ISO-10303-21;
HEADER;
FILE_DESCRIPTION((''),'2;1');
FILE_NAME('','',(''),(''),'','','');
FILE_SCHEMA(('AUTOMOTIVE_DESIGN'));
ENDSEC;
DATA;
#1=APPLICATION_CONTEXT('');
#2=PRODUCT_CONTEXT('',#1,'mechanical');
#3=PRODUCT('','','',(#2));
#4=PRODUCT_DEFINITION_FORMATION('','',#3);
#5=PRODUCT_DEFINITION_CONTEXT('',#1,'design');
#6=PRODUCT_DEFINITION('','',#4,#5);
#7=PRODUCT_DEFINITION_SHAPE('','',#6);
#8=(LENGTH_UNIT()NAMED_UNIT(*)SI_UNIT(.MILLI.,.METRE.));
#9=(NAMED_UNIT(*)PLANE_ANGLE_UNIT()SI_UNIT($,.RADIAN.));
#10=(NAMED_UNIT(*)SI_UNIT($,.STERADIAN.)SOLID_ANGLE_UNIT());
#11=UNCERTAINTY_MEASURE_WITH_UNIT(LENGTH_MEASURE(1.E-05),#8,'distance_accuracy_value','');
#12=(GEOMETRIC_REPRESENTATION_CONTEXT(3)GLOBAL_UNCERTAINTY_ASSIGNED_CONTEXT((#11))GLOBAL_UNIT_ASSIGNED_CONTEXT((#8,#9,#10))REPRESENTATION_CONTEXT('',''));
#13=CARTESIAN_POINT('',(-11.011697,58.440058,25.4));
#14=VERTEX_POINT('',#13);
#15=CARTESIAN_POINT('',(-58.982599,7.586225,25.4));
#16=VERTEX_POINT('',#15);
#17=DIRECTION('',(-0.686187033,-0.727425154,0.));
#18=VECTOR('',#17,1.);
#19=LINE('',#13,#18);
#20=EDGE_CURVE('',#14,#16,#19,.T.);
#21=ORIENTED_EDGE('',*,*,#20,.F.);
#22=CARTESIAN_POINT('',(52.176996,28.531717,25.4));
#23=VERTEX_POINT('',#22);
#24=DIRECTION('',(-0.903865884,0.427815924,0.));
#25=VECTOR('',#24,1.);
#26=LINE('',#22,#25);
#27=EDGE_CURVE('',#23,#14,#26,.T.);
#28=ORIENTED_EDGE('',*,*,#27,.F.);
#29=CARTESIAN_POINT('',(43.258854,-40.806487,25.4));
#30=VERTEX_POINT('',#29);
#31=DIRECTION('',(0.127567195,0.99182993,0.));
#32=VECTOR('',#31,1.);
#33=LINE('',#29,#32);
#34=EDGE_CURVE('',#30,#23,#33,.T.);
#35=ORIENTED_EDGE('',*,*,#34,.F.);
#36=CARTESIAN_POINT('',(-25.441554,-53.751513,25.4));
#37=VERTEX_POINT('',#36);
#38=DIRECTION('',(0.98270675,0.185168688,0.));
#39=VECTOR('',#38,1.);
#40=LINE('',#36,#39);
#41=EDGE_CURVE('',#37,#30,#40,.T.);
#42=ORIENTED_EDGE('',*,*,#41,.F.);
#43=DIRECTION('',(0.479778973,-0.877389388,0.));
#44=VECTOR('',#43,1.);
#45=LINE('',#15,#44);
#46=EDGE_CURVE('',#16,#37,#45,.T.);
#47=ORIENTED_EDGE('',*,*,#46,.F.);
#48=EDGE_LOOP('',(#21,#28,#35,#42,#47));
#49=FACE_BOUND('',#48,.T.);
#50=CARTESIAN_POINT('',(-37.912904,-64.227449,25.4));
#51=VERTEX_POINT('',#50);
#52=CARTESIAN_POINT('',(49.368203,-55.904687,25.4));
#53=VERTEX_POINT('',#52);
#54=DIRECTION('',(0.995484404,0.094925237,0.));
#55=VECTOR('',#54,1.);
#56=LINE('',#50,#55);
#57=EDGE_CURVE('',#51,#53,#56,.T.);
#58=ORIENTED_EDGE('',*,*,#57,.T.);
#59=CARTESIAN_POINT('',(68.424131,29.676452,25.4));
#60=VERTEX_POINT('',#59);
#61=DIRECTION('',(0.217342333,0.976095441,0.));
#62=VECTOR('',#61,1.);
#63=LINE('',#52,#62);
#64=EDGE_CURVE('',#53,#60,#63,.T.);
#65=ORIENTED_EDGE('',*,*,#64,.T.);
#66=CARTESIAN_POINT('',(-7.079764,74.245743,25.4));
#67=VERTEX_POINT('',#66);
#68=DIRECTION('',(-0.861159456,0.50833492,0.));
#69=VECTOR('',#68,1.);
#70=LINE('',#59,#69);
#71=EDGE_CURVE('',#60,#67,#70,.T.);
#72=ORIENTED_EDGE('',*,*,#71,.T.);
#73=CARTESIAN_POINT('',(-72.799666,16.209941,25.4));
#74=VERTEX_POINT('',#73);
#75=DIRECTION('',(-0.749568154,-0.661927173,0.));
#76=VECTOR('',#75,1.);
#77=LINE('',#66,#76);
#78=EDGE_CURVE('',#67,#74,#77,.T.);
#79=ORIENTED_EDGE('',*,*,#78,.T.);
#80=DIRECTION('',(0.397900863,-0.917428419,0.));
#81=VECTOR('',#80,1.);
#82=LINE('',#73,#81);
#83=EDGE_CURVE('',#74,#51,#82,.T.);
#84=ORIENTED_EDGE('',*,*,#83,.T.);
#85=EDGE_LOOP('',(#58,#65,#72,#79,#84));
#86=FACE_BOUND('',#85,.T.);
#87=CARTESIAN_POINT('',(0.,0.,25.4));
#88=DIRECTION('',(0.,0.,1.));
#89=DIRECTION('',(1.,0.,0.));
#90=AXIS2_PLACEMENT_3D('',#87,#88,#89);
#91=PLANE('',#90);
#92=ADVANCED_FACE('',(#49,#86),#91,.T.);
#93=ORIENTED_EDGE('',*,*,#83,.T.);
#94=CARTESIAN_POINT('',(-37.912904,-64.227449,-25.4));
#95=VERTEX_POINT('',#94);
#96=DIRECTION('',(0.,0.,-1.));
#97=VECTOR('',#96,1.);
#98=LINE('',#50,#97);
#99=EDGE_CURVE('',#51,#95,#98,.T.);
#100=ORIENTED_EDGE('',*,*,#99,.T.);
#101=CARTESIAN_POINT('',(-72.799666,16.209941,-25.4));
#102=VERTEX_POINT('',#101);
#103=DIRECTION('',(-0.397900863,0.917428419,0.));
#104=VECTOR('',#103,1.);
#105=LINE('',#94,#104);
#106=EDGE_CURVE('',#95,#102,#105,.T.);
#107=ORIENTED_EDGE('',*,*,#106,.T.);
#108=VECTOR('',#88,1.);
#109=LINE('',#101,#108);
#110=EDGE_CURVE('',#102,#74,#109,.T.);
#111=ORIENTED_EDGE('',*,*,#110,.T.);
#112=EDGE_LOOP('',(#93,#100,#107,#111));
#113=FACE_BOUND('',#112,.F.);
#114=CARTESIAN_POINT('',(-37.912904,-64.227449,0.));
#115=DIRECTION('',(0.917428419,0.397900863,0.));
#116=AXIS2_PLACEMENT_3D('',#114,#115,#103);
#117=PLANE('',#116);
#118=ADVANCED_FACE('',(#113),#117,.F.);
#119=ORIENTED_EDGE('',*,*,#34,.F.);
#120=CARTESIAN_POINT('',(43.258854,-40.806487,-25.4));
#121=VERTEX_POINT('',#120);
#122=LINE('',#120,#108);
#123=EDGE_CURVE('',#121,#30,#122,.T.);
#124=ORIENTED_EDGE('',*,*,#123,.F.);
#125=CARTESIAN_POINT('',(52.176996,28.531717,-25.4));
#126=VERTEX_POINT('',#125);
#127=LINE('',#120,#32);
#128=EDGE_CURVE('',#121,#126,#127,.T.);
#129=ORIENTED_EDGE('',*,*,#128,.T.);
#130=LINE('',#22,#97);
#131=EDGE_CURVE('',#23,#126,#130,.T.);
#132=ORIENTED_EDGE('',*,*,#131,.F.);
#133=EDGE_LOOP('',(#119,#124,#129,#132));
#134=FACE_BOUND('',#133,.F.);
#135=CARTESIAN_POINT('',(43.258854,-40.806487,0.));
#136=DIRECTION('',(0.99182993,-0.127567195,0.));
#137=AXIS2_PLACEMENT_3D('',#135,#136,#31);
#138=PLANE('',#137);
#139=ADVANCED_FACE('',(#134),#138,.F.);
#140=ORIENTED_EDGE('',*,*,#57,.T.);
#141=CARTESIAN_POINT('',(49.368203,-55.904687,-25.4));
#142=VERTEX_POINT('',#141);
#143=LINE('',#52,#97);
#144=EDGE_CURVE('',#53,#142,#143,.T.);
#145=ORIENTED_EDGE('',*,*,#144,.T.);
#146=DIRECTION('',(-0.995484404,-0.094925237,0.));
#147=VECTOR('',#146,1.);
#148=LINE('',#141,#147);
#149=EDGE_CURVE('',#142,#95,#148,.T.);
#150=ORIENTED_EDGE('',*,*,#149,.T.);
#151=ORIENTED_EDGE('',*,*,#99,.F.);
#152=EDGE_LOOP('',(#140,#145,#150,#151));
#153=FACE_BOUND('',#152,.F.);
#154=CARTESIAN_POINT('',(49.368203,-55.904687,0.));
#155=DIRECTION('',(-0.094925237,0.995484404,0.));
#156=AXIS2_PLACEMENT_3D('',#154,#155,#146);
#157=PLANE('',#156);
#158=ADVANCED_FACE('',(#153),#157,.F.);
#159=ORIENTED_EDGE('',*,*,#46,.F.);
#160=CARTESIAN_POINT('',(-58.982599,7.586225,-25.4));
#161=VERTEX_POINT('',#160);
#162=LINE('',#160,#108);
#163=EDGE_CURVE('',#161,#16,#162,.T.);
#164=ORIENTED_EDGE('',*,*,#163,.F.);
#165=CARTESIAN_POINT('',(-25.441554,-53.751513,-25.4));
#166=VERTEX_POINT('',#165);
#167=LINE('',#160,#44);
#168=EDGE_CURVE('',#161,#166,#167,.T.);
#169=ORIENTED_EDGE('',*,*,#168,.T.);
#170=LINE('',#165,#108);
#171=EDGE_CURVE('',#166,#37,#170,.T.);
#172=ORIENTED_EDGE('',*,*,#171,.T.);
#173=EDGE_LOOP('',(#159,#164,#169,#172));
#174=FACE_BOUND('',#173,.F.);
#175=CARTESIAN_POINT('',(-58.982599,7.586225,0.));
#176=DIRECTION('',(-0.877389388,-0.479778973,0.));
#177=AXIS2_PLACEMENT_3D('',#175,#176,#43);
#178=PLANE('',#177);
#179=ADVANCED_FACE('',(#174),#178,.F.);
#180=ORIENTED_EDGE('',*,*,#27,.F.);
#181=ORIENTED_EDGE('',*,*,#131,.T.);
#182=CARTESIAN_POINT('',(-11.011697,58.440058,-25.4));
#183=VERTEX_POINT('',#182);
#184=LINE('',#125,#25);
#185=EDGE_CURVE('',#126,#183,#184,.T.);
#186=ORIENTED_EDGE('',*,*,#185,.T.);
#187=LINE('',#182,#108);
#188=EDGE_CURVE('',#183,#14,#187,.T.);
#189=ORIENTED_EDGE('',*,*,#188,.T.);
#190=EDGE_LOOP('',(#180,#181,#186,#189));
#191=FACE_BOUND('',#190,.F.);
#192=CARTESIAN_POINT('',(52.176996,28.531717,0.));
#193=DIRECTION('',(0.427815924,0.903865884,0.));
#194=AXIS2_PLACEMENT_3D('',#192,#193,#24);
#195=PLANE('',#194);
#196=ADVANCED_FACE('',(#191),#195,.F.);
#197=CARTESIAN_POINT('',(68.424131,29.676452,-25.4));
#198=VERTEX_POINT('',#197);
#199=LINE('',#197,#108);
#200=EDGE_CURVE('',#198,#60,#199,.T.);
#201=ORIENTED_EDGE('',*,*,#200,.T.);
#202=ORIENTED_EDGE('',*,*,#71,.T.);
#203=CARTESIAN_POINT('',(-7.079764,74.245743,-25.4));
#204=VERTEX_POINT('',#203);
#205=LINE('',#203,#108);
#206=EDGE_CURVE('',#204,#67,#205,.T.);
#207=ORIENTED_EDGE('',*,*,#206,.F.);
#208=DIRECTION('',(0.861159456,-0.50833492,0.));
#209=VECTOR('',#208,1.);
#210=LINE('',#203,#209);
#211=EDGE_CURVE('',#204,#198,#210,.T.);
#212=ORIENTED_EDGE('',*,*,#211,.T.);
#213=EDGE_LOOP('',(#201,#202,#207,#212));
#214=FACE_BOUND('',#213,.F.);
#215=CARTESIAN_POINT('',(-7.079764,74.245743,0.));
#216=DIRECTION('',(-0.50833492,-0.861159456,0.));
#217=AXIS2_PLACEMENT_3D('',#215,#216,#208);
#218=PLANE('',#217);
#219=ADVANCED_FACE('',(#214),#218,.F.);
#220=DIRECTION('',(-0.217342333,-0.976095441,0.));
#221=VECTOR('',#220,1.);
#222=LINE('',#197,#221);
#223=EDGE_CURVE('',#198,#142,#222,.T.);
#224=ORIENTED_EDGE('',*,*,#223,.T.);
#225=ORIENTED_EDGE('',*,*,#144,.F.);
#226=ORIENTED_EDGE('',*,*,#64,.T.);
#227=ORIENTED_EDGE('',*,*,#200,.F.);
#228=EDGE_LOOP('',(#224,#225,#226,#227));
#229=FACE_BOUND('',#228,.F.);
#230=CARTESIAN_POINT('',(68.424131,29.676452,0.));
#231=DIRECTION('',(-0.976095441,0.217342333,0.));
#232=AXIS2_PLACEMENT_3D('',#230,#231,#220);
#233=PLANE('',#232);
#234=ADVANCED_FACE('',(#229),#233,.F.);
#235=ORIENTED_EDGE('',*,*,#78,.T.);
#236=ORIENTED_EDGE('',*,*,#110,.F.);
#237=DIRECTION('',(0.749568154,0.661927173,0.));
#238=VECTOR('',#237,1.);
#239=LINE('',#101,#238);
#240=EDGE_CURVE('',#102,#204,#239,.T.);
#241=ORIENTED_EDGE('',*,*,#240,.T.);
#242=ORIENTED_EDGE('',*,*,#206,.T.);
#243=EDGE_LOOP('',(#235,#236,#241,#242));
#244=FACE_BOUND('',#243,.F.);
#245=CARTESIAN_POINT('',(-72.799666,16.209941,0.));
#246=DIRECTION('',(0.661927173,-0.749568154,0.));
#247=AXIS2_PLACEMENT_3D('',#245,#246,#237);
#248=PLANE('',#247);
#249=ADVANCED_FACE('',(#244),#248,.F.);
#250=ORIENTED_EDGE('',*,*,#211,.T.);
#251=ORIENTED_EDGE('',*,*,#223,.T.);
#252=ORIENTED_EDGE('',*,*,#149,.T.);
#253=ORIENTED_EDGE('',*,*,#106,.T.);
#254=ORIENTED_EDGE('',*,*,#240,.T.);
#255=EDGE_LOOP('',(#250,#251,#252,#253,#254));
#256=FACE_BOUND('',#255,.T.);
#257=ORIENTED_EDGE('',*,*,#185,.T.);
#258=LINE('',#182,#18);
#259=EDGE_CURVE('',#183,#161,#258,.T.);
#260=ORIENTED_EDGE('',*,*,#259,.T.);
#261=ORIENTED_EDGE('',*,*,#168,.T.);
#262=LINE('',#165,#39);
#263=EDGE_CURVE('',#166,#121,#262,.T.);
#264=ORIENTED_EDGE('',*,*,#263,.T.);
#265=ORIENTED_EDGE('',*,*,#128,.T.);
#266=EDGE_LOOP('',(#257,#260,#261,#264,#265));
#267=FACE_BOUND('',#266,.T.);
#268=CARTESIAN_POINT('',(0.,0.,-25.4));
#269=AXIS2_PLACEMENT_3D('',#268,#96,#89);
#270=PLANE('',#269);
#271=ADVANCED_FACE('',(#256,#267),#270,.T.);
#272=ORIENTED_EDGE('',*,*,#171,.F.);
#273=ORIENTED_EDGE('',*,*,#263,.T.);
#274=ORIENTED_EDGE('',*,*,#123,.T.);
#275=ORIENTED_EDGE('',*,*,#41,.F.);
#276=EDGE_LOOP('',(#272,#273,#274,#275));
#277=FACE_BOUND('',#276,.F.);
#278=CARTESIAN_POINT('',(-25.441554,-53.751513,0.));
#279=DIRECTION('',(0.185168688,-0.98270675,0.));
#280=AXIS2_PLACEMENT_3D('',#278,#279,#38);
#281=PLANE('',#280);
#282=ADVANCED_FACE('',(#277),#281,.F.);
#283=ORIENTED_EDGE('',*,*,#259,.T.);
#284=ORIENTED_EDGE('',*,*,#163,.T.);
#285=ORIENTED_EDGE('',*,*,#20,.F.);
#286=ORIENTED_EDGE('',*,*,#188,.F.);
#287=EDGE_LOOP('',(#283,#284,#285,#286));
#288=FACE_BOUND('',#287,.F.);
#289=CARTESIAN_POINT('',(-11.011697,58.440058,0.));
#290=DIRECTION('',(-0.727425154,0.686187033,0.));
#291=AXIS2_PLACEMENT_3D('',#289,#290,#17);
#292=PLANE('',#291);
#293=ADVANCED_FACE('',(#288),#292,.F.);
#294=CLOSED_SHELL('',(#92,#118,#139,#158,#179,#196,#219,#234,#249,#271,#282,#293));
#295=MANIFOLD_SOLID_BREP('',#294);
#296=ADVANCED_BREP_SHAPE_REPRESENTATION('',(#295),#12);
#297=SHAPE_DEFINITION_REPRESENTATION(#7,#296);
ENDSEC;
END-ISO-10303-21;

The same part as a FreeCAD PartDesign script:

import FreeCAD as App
import Part
import Sketcher

V = App.Vector
Q = App.Units.Quantity


def add_polygon(sketch, points):
    """Adds a closed chain of lines whose ends are joined by coincident constraints."""
    first, n = sketch.GeometryCount, len(points)
    for a, b in zip(points, points[1:] + points[:1]):
        sketch.addGeometry(Part.LineSegment(App.Vector(*a, 0), App.Vector(*b, 0)), False)
    for i in range(n):
        sketch.addConstraint(Sketcher.Constraint("Coincident", first + i, 2, first + (i + 1) % n, 1))

doc = App.newDocument("Part")
body = doc.addObject("PartDesign::Body", "Body")

# Sketch on XY plane
sketch1 = doc.addObject("Sketcher::SketchObject", "Sketch")
body.addObject(sketch1)
sketch1.AttachmentSupport = (doc.XY_Plane, [""])
sketch1.MapMode = "FlatFace"
add_polygon(sketch1, [(68, 30), (-7, 74), (-73, 16), (-38, -64), (49, -56)])  # lines 0-4
sketch1.addConstraint(Sketcher.Constraint("Equal", 0, 1))
sketch1.addConstraint(Sketcher.Constraint("Equal", 1, 2))
sketch1.addConstraint(Sketcher.Constraint("Equal", 2, 3))
sketch1.addConstraint(Sketcher.Constraint("Equal", 3, 4))
sketch1.addConstraint(Sketcher.Constraint("DistanceY", 2, 2, 4, 2, Q("93.903901 mm")))
sketch1.addConstraint(Sketcher.Constraint("Distance", 0, Q("87.67702 mm")))
sketch1.addConstraint(Sketcher.Constraint("DistanceY", -1, 1, 1, 2, Q("16.209941 mm")))
sketch1.addConstraint(Sketcher.Constraint("DistanceY", 2, 2, -1, 1, Q("64.227449 mm")))
sketch1.addConstraint(Sketcher.Constraint("DistanceX", -1, 1, 4, 2, Q("68.424131 mm")))
sketch1.addConstraint(Sketcher.Constraint("DistanceX", 2, 2, 0, 2, Q("30.83314 mm")))
pad1 = doc.addObject("PartDesign::Pad", "Pad")
body.addObject(pad1)
pad1.Profile = sketch1
pad1.Length = Q("1 in")

# Sketch on XY plane
sketch2 = doc.addObject("Sketcher::SketchObject", "Sketch001")
body.addObject(sketch2)
sketch2.AttachmentSupport = (doc.XY_Plane, [""])
sketch2.MapMode = "FlatFace"
add_polygon(sketch2, [(68, 30), (49, -56), (-38, -64), (-73, 16), (-7, 74)])  # lines 0-4
sketch2.addConstraint(Sketcher.Constraint("Equal", 0, 1))
sketch2.addConstraint(Sketcher.Constraint("Equal", 1, 2))
sketch2.addConstraint(Sketcher.Constraint("Equal", 2, 3))
sketch2.addConstraint(Sketcher.Constraint("Equal", 3, 4))
sketch2.addConstraint(Sketcher.Constraint("DistanceY", 1, 2, 4, 2, Q("93.903901 mm")))
sketch2.addConstraint(Sketcher.Constraint("Distance", 0, Q("87.677019 mm")))
sketch2.addConstraint(Sketcher.Constraint("DistanceY", 1, 2, -1, 1, Q("64.227449 mm")))
sketch2.addConstraint(Sketcher.Constraint("DistanceY", -1, 1, 2, 2, Q("16.209941 mm")))
sketch2.addConstraint(Sketcher.Constraint("DistanceX", -1, 1, 4, 2, Q("68.424131 mm")))
sketch2.addConstraint(Sketcher.Constraint("DistanceY", 1, 2, 0, 2, Q("8.322762 mm")))
pad2 = doc.addObject("PartDesign::Pad", "Pad001")
body.addObject(pad2)
pad2.Profile = sketch2
pad2.Length = Q("1 in")
pad2.Reversed = True

# Sketch on XY plane
sketch3 = doc.addObject("Sketcher::SketchObject", "Sketch002")
body.addObject(sketch3)
sketch3.AttachmentSupport = (doc.XY_Plane, [""])
sketch3.MapMode = "FlatFace"
sketch3.AttachmentOffset = App.Placement(V(0, 0, 1 * 25.4), App.Rotation())
add_polygon(sketch3, [(52, 29), (-11, 58), (-59, 8), (-25, -54), (43, -41)])  # lines 0-4
sketch3.addConstraint(Sketcher.Constraint("Equal", 0, 1))
sketch3.addConstraint(Sketcher.Constraint("Equal", 1, 2))
sketch3.addConstraint(Sketcher.Constraint("Equal", 2, 3))
sketch3.addConstraint(Sketcher.Constraint("Equal", 3, 4))
sketch3.addConstraint(Sketcher.Constraint("DistanceX", 1, 2, -1, 1, Q("58.982599 mm")))
sketch3.addConstraint(Sketcher.Constraint("Distance", 0, Q("69.909368 mm")))
sketch3.addConstraint(Sketcher.Constraint("DistanceY", 2, 2, 1, 2, Q("61.337738 mm")))
sketch3.addConstraint(Sketcher.Constraint("DistanceY", 2, 2, 0, 2, Q("112.191571 mm")))
sketch3.addConstraint(Sketcher.Constraint("DistanceY", 3, 2, 1, 2, Q("48.392712 mm")))
sketch3.addConstraint(Sketcher.Constraint("DistanceY", -1, 1, 0, 2, Q("58.440058 mm")))
pocket1 = doc.addObject("PartDesign::Pocket", "Pocket")
body.addObject(pocket1)
pocket1.Profile = sketch3
pocket1.Length = Q("1 in")

# Sketch on XY plane
sketch4 = doc.addObject("Sketcher::SketchObject", "Sketch003")
body.addObject(sketch4)
sketch4.AttachmentSupport = (doc.XY_Plane, [""])
sketch4.MapMode = "FlatFace"
add_polygon(sketch4, [(52, 29), (-11, 58), (-59, 8), (-25, -54), (43, -41)])  # lines 0-4
sketch4.addConstraint(Sketcher.Constraint("Equal", 0, 1))
sketch4.addConstraint(Sketcher.Constraint("Equal", 1, 2))
sketch4.addConstraint(Sketcher.Constraint("Equal", 2, 3))
sketch4.addConstraint(Sketcher.Constraint("Equal", 3, 4))
sketch4.addConstraint(Sketcher.Constraint("DistanceX", 1, 2, -1, 1, Q("58.982599 mm")))
sketch4.addConstraint(Sketcher.Constraint("Distance", 0, Q("69.909368 mm")))
sketch4.addConstraint(Sketcher.Constraint("DistanceY", 2, 2, 1, 2, Q("61.337738 mm")))
sketch4.addConstraint(Sketcher.Constraint("DistanceY", 2, 2, 0, 2, Q("112.191571 mm")))
sketch4.addConstraint(Sketcher.Constraint("DistanceY", 3, 2, 1, 2, Q("48.392712 mm")))
sketch4.addConstraint(Sketcher.Constraint("DistanceY", -1, 1, 0, 2, Q("58.440058 mm")))
pocket2 = doc.addObject("PartDesign::Pocket", "Pocket001")
body.addObject(pocket2)
pocket2.Profile = sketch4
pocket2.Length = Q("1 in")

doc.recompute()
